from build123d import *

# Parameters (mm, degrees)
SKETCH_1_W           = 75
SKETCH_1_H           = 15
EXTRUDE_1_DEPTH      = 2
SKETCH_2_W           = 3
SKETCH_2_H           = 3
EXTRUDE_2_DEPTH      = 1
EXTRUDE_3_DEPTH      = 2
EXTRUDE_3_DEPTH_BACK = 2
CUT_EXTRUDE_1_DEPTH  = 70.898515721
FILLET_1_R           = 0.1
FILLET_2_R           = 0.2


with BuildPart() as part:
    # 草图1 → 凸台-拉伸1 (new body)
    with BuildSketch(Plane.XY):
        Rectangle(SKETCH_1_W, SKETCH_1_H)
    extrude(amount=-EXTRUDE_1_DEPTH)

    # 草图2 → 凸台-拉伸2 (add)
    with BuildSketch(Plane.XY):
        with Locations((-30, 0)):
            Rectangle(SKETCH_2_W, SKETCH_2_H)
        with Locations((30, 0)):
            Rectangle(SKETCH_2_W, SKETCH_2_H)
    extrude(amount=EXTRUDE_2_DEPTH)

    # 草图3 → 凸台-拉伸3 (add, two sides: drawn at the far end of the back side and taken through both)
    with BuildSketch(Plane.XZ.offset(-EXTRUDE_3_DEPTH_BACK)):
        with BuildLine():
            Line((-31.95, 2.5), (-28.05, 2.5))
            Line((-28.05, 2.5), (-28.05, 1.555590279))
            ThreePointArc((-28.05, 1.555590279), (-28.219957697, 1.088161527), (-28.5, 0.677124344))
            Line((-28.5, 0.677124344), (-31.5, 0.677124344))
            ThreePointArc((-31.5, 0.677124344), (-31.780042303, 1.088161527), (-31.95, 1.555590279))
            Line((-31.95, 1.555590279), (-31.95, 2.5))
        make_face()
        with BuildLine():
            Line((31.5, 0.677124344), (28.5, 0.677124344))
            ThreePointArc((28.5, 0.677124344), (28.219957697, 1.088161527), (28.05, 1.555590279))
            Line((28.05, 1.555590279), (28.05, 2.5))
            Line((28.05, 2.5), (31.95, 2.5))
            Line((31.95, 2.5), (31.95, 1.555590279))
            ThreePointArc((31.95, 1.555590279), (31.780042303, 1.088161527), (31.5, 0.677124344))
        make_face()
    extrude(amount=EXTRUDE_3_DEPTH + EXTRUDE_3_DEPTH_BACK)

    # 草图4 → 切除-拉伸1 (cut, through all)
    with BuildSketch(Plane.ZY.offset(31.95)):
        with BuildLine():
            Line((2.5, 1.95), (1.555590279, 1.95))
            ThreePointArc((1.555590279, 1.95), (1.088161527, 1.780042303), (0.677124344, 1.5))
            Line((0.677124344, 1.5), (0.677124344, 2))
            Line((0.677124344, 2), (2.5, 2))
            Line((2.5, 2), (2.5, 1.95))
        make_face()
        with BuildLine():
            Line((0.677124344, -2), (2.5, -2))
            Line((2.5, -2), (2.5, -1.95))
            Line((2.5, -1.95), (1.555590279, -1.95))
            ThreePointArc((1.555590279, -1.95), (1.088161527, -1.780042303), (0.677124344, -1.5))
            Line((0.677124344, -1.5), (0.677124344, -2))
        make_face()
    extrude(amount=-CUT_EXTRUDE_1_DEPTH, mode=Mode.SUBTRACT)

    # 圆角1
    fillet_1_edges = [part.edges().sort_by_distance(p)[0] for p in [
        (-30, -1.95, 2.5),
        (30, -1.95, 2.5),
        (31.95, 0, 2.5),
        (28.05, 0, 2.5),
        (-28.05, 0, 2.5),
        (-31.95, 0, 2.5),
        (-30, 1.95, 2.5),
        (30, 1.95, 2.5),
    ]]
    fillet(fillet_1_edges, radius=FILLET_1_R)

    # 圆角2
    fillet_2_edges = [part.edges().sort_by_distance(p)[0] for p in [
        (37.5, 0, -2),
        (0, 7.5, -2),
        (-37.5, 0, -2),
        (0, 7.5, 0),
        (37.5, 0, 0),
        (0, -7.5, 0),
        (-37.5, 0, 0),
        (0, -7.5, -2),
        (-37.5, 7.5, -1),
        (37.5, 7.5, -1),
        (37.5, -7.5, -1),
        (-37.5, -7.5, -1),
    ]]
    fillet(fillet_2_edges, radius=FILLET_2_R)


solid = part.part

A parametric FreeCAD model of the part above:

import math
import FreeCAD as App
import Part
import Sketcher


def edges_at(feature, points):
    """Names of the edges that pass closest to the given points."""
    edges = feature.Shape.Edges
    near = lambda p: min(range(len(edges)), key=lambda i: edges[i].distToShape(Part.Vertex(*p))[0])
    return sorted({f"Edge{near(p) + 1}" for p in points})


def add_polygon(sketch, points):
    """Adds a closed chain of lines whose ends are joined by coincident constraints."""
    first, n = sketch.GeometryCount, len(points)
    for a, b in zip(points, points[1:] + points[:1]):
        sketch.addGeometry(Part.LineSegment(App.Vector(*a, 0), App.Vector(*b, 0)), False)
    for i in range(n):
        sketch.addConstraint(Sketcher.Constraint("Coincident", first + i, 2, first + (i + 1) % n, 1))

doc = App.newDocument("Part")
params = doc.addObject("Spreadsheet::Sheet", "Params")
for row, (alias, value) in enumerate([
    ("sketch1_width", "75 mm"),
    ("sketch1_height", "15 mm"),
    ("pad1_length", "2 mm"),
    ("sketch2_width", "3 mm"),
    ("pad2_length", "1 mm"),
    ("sketch3_radius", "2 mm"),
    ("sketch3_width", "3 mm"),
    ("sketch3_width2", "3.9 mm"),
    ("pad3_length", "2 mm"),
    ("pad3_length2", "2 mm"),
    ("sketch4_radius", "2 mm"),
    ("sketch4_width", "0.5 mm"),
    ("sketch4_width2", "0.05 mm"),
    ("fillet_radius", "0.1 mm"),
    ("fillet2_radius", "0.2 mm"),
], start=1):
    params.set(f"A{row}", alias)
    params.set(f"B{row}", "=" + value)
    params.setAlias(f"B{row}", alias)

body = doc.addObject("PartDesign::Body", "Body")

sketch1 = doc.addObject("Sketcher::SketchObject", "Sketch")
body.addObject(sketch1)
sketch1.AttachmentSupport = (doc.XY_Plane, [""])
sketch1.MapMode = "FlatFace"
add_polygon(sketch1, [(-38, 8), (-38, -8), (38, -8), (38, 8)])
sketch1.addConstraint(Sketcher.Constraint("Vertical", 0))
sketch1.addConstraint(Sketcher.Constraint("Horizontal", 1))
sketch1.addConstraint(Sketcher.Constraint("Vertical", 2))
sketch1.addConstraint(Sketcher.Constraint("Horizontal", 3))
sketch1.addConstraint(Sketcher.Constraint("Symmetric", 0, 2, 2, 2, -1, 1))
sketch1.addConstraint(Sketcher.Constraint("DistanceX", 1, 1, 1, 2, 75.0))
sketch1.addConstraint(Sketcher.Constraint("DistanceY", 0, 2, 0, 1, 15.0))
sketch1.setExpression("Constraints[9]", "Params.sketch1_width")
sketch1.setExpression("Constraints[10]", "Params.sketch1_height")
pad1 = doc.addObject("PartDesign::Pad", "Pad")
body.addObject(pad1)
pad1.Profile = sketch1
pad1.setExpression("Length", "Params.pad1_length")
pad1.Reversed = True

sketch2 = doc.addObject("Sketcher::SketchObject", "Sketch001")
body.addObject(sketch2)
sketch2.AttachmentSupport = (doc.XY_Plane, [""])
sketch2.MapMode = "FlatFace"
add_polygon(sketch2, [(-31.5, 1.5), (-31.5, -1.5), (-28.5, -1.5), (-28.5, 1.5)])
add_polygon(sketch2, [(28.5, 1.5), (28.5, -1.5), (31.5, -1.5), (31.5, 1.5)])
sketch2.addConstraint(Sketcher.Constraint("Vertical", 0))
sketch2.addConstraint(Sketcher.Constraint("Horizontal", 1))
sketch2.addConstraint(Sketcher.Constraint("Vertical", 2))
sketch2.addConstraint(Sketcher.Constraint("Horizontal", 3))
sketch2.addConstraint(Sketcher.Constraint("Vertical", 4))
sketch2.addConstraint(Sketcher.Constraint("Horizontal", 5))
sketch2.addConstraint(Sketcher.Constraint("Vertical", 6))
sketch2.addConstraint(Sketcher.Constraint("Horizontal", 7))
sketch2.addConstraint(Sketcher.Constraint("Symmetric", 2, 2, 4, 2, -1, 1))
sketch2.addConstraint(Sketcher.Constraint("Symmetric", 0, 2, 6, 2, -1, 1))
sketch2.addConstraint(Sketcher.Constraint("Horizontal", 1, 2, 4, 2))
sketch2.addConstraint(Sketcher.Constraint("Equal", 7, 0))
sketch2.addConstraint(Sketcher.Constraint("DistanceX", 1, 1, 1, 2, 3.0))
sketch2.addConstraint(Sketcher.Constraint("DistanceX", 1, 2, 4, 2, 57.0))
sketch2.setExpression("Constraints[20]", "Params.sketch2_width")
pad2 = doc.addObject("PartDesign::Pad", "Pad001")
body.addObject(pad2)
pad2.Profile = sketch2
pad2.setExpression("Length", "Params.pad2_length")

sketch3 = doc.addObject("Sketcher::SketchObject", "Sketch002")
body.addObject(sketch3)
sketch3.AttachmentSupport = (doc.XZ_Plane, [""])
sketch3.MapMode = "FlatFace"
sketch3.addGeometry(Part.LineSegment(App.Vector(-28.1, 2.5, 0), App.Vector(-31.9, 2.5, 0)), False)
sketch3.addGeometry(Part.LineSegment(App.Vector(-31.9, 2.5, 0), App.Vector(-31.9, 1.6, 0)), False)
sketch3.addGeometry(Part.ArcOfCircle(Part.Circle(App.Vector(-30, 2, 0), App.Vector(0, 0, 1), 2), math.radians(-167), math.radians(-139)), False)
sketch3.addGeometry(Part.LineSegment(App.Vector(-31.5, 0.7, 0), App.Vector(-28.5, 0.7, 0)), False)
sketch3.addGeometry(Part.ArcOfCircle(Part.Circle(App.Vector(-30, 2, 0), App.Vector(0, 0, 1), 2), math.radians(-41), math.radians(-13)), False)
sketch3.addGeometry(Part.LineSegment(App.Vector(-28.1, 1.6, 0), App.Vector(-28.1, 2.5, 0)), False)
sketch3.addGeometry(Part.LineSegment(App.Vector(28.5, 0.7, 0), App.Vector(31.5, 0.7, 0)), False)
sketch3.addGeometry(Part.ArcOfCircle(Part.Circle(App.Vector(30, 2, 0), App.Vector(0, 0, 1), 2), math.radians(-41), math.radians(-13)), False)
sketch3.addGeometry(Part.LineSegment(App.Vector(31.9, 1.6, 0), App.Vector(31.9, 2.5, 0)), False)
sketch3.addGeometry(Part.LineSegment(App.Vector(31.9, 2.5, 0), App.Vector(28.1, 2.5, 0)), False)
sketch3.addGeometry(Part.LineSegment(App.Vector(28.1, 2.5, 0), App.Vector(28.1, 1.6, 0)), False)
sketch3.addGeometry(Part.ArcOfCircle(Part.Circle(App.Vector(30, 2, 0), App.Vector(0, 0, 1), 2), math.radians(-167), math.radians(-139)), False)
sketch3.addConstraint(Sketcher.Constraint("Coincident", 0, 2, 1, 1))
sketch3.addConstraint(Sketcher.Constraint("Coincident", 1, 2, 2, 1))
sketch3.addConstraint(Sketcher.Constraint("Coincident", 2, 2, 3, 1))
sketch3.addConstraint(Sketcher.Constraint("Coincident", 3, 2, 4, 1))
sketch3.addConstraint(Sketcher.Constraint("Coincident", 4, 2, 5, 1))
sketch3.addConstraint(Sketcher.Constraint("Coincident", 5, 2, 0, 1))
sketch3.addConstraint(Sketcher.Constraint("Coincident", 6, 2, 7, 1))
sketch3.addConstraint(Sketcher.Constraint("Coincident", 7, 2, 8, 1))
sketch3.addConstraint(Sketcher.Constraint("Coincident", 8, 2, 9, 1))
sketch3.addConstraint(Sketcher.Constraint("Coincident", 9, 2, 10, 1))
sketch3.addConstraint(Sketcher.Constraint("Coincident", 10, 2, 11, 1))
sketch3.addConstraint(Sketcher.Constraint("Coincident", 11, 2, 6, 1))
sketch3.addConstraint(Sketcher.Constraint("Horizontal", 0))
sketch3.addConstraint(Sketcher.Constraint("Vertical", 1))
sketch3.addConstraint(Sketcher.Constraint("Horizontal", 3))
sketch3.addConstraint(Sketcher.Constraint("Vertical", 5))
sketch3.addConstraint(Sketcher.Constraint("Horizontal", 6))
sketch3.addConstraint(Sketcher.Constraint("Vertical", 8))
sketch3.addConstraint(Sketcher.Constraint("Horizontal", 9))
sketch3.addConstraint(Sketcher.Constraint("Vertical", 10))
sketch3.addConstraint(Sketcher.Constraint("Coincident", 4, 3, 2, 3))
sketch3.addConstraint(Sketcher.Constraint("Coincident", 11, 3, 7, 3))
sketch3.addConstraint(Sketcher.Constraint("Equal", 2, 4))
sketch3.addConstraint(Sketcher.Constraint("Equal", 4, 7))
sketch3.addConstraint(Sketcher.Constraint("Equal", 7, 11))
sketch3.addConstraint(Sketcher.Constraint("Symmetric", 2, 3, 7, 3, -2))
sketch3.addConstraint(Sketcher.Constraint("Symmetric", 0, 2, 8, 2, -2))
sketch3.addConstraint(Sketcher.Constraint("Horizontal", 1, 2, 4, 2))
sketch3.addConstraint(Sketcher.Constraint("Horizontal", 3, 2, 6, 2))
sketch3.addConstraint(Sketcher.Constraint("Horizontal", 7, 2, 10, 2))
sketch3.addConstraint(Sketcher.Constraint("Radius", 2, 2.0))
sketch3.addConstraint(Sketcher.Constraint("DistanceX", 3, 1, 3, 2, 3.0))
sketch3.addConstraint(Sketcher.Constraint("DistanceX", 0, 2, 0, 1, 3.9))
sketch3.addConstraint(Sketcher.Constraint("DistanceX", 2, 3, -1, 1, 30.0))
sketch3.addConstraint(Sketcher.Constraint("DistanceY", -1, 1, 2, 3, 2.0))
sketch3.addConstraint(Sketcher.Constraint("DistanceY", -1, 1, 0, 2, 2.5))
sketch3.setExpression("Constraints[30]", "Params.sketch3_radius")
sketch3.setExpression("Constraints[31]", "Params.sketch3_width")
sketch3.setExpression("Constraints[32]", "Params.sketch3_width2")
pad3 = doc.addObject("PartDesign::Pad", "Pad002")
body.addObject(pad3)
pad3.Profile = sketch3
pad3.Type = "TwoLengths"
pad3.setExpression("Length", "Params.pad3_length")
pad3.setExpression("Length2", "Params.pad3_length2")

sketch4 = doc.addObject("Sketcher::SketchObject", "Sketch003")
body.addObject(sketch4)
sketch4.AttachmentSupport = (doc.YZ_Plane, [""])
sketch4.MapMode = "FlatFace"
sketch4.AttachmentOffset = App.Placement(App.Vector(0, 0, -31.95), App.Rotation())
sketch4.addGeometry(Part.LineSegment(App.Vector(1.95, 1.56, 0), App.Vector(1.95, 2.5, 0)), False)
sketch4.addGeometry(Part.LineSegment(App.Vector(1.95, 2.5, 0), App.Vector(2, 2.5, 0)), False)
sketch4.addGeometry(Part.LineSegment(App.Vector(2, 2.5, 0), App.Vector(2, 0.68, 0)), False)
sketch4.addGeometry(Part.LineSegment(App.Vector(2, 0.68, 0), App.Vector(1.5, 0.68, 0)), False)
sketch4.addGeometry(Part.ArcOfCircle(Part.Circle(App.Vector(0, 2, 0), App.Vector(0, 0, 1), 2), math.radians(-41), math.radians(-13)), False)
sketch4.addGeometry(Part.LineSegment(App.Vector(-2, 0.68, 0), App.Vector(-2, 2.5, 0)), False)
sketch4.addGeometry(Part.LineSegment(App.Vector(-2, 2.5, 0), App.Vector(-1.95, 2.5, 0)), False)
sketch4.addGeometry(Part.LineSegment(App.Vector(-1.95, 2.5, 0), App.Vector(-1.95, 1.56, 0)), False)
sketch4.addGeometry(Part.ArcOfCircle(Part.Circle(App.Vector(0, 2, 0), App.Vector(0, 0, 1), 2), math.radians(-167), math.radians(-139)), False)
sketch4.addGeometry(Part.LineSegment(App.Vector(-1.5, 0.68, 0), App.Vector(-2, 0.68, 0)), False)
sketch4.addConstraint(Sketcher.Constraint("Coincident", 0, 2, 1, 1))
sketch4.addConstraint(Sketcher.Constraint("Coincident", 1, 2, 2, 1))
sketch4.addConstraint(Sketcher.Constraint("Coincident", 2, 2, 3, 1))
sketch4.addConstraint(Sketcher.Constraint("Coincident", 3, 2, 4, 1))
sketch4.addConstraint(Sketcher.Constraint("Coincident", 4, 2, 0, 1))
sketch4.addConstraint(Sketcher.Constraint("Coincident", 5, 2, 6, 1))
sketch4.addConstraint(Sketcher.Constraint("Coincident", 6, 2, 7, 1))
sketch4.addConstraint(Sketcher.Constraint("Coincident", 7, 2, 8, 1))
sketch4.addConstraint(Sketcher.Constraint("Coincident", 8, 2, 9, 1))
sketch4.addConstraint(Sketcher.Constraint("Coincident", 9, 2, 5, 1))
sketch4.addConstraint(Sketcher.Constraint("Vertical", 0))
sketch4.addConstraint(Sketcher.Constraint("Horizontal", 1))
sketch4.addConstraint(Sketcher.Constraint("Vertical", 2))
sketch4.addConstraint(Sketcher.Constraint("Horizontal", 3))
sketch4.addConstraint(Sketcher.Constraint("Vertical", 5))
sketch4.addConstraint(Sketcher.Constraint("Horizontal", 6))
sketch4.addConstraint(Sketcher.Constraint("Vertical", 7))
sketch4.addConstraint(Sketcher.Constraint("Horizontal", 9))
sketch4.addConstraint(Sketcher.Constraint("Coincident", 8, 3, 4, 3))
sketch4.addConstraint(Sketcher.Constraint("Equal", 4, 8))
sketch4.addConstraint(Sketcher.Constraint("Symmetric", 1, 2, 5, 2, -2))
sketch4.addConstraint(Sketcher.Constraint("Symmetric", 4, 2, 7, 2, -2))
sketch4.addConstraint(Sketcher.Constraint("Horizontal", 3, 2, 8, 2))
sketch4.addConstraint(Sketcher.Constraint("Radius", 4, 2.0))
sketch4.addConstraint(Sketcher.Constraint("DistanceX", 3, 2, 3, 1, 0.5))
sketch4.addConstraint(Sketcher.Constraint("DistanceY", -1, 1, 4, 3, 2.0))
sketch4.addConstraint(Sketcher.Constraint("DistanceX", -1, 1, 1, 2, 2.0))
sketch4.addConstraint(Sketcher.Constraint("DistanceX", 1, 1, 1, 2, 0.05))
sketch4.addConstraint(Sketcher.Constraint("DistanceY", -1, 1, 0, 2, 2.5))
sketch4.setExpression("Constraints[23]", "Params.sketch4_radius")
sketch4.setExpression("Constraints[24]", "Params.sketch4_width")
sketch4.setExpression("Constraints[27]", "Params.sketch4_width2")
pocket1 = doc.addObject("PartDesign::Pocket", "Pocket")
body.addObject(pocket1)
pocket1.Profile = sketch4
pocket1.Type = "ThroughAll"
pocket1.Reversed = True
doc.recompute()

fillet = doc.addObject("PartDesign::Fillet", "Fillet")
body.addObject(fillet)
fillet.Base = (pocket1, edges_at(pocket1, [
    (-30, -1.95, 2.5),
    (30, -1.95, 2.5),
    (31.95, 0, 2.5),
    (28.05, 0, 2.5),
    (-28.05, 0, 2.5),
    (-31.95, 0, 2.5),
    (-30, 1.95, 2.5),
    (30, 1.95, 2.5),
]))
fillet.setExpression("Radius", "Params.fillet_radius")
doc.recompute()

fillet2 = doc.addObject("PartDesign::Fillet", "Fillet001")
body.addObject(fillet2)
fillet2.Base = (fillet, edges_at(fillet, [
    (37.5, 0, -2),
    (0, 7.5, -2),
    (-37.5, 0, -2),
    (0, 7.5, 0),
    (37.5, 0, 0),
    (0, -7.5, 0),
    (-37.5, 0, 0),
    (0, -7.5, -2),
    (-37.5, 7.5, -1),
    (37.5, 7.5, -1),
    (37.5, -7.5, -1),
    (-37.5, -7.5, -1),
]))
fillet2.setExpression("Radius", "Params.fillet2_radius")

doc.recompute()
